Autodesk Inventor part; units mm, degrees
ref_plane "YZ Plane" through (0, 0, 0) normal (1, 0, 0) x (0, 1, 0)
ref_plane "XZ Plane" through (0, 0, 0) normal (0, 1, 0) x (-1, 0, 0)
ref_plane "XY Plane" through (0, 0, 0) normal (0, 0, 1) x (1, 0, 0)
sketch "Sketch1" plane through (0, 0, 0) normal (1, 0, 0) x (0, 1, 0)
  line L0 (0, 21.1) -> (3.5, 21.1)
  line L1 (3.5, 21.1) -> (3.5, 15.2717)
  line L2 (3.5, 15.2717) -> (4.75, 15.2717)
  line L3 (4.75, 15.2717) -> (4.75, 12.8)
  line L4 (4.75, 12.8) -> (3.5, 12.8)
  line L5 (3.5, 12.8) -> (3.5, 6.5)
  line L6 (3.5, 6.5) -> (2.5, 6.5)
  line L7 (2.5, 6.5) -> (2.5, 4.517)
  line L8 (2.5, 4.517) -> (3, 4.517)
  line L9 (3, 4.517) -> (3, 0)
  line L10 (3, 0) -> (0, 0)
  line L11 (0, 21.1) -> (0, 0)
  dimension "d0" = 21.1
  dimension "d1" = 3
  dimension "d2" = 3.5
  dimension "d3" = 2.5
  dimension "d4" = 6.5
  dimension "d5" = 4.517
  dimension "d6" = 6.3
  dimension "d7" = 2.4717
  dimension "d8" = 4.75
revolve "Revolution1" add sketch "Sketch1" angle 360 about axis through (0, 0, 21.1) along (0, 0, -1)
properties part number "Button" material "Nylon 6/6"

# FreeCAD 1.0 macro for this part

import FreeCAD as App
import Part
import Sketcher
from FreeCAD import Vector

doc = App.newDocument("Part")
body = doc.addObject("PartDesign::Body", "Body")

# Sketch on YZ plane
sketch1 = body.newObject("Sketcher::SketchObject", "Sketch")
sketch1.AttachmentSupport = (doc.getObject("YZ_Plane"), [""])
sketch1.MapMode = "FlatFace"
sketch1.addGeometry([
    Part.LineSegment(Vector(3.5, 21.1, 0), Vector(0, 21.1, 0)),  # 0
    Part.LineSegment(Vector(0, 21.1, 0), Vector(0, 0, 0)),  # 1
    Part.LineSegment(Vector(0, 0, 0), Vector(3, 0, 0)),  # 2
    Part.LineSegment(Vector(3, 0, 0), Vector(3, 4.5, 0)),  # 3
    Part.LineSegment(Vector(3, 4.5, 0), Vector(2.5, 4.5, 0)),  # 4
    Part.LineSegment(Vector(2.5, 4.5, 0), Vector(2.5, 6.5, 0)),  # 5
    Part.LineSegment(Vector(2.5, 6.5, 0), Vector(3.5, 6.5, 0)),  # 6
    Part.LineSegment(Vector(3.5, 6.5, 0), Vector(3.5, 12.8, 0)),  # 7
    Part.LineSegment(Vector(3.5, 12.8, 0), Vector(4.8, 12.8, 0)),  # 8
    Part.LineSegment(Vector(4.8, 12.8, 0), Vector(4.8, 15.3, 0)),  # 9
    Part.LineSegment(Vector(4.8, 15.3, 0), Vector(3.5, 15.3, 0)),  # 10
    Part.LineSegment(Vector(3.5, 15.3, 0), Vector(3.5, 21.1, 0)),  # 11
], False)
sketch1.addConstraint([
    Sketcher.Constraint("Coincident", 0, 2, 1, 1),
    Sketcher.Constraint("Coincident", 1, 2, 2, 1),
    Sketcher.Constraint("Coincident", 2, 2, 3, 1),
    Sketcher.Constraint("Coincident", 3, 2, 4, 1),
    Sketcher.Constraint("Coincident", 4, 2, 5, 1),
    Sketcher.Constraint("Coincident", 5, 2, 6, 1),
    Sketcher.Constraint("Coincident", 6, 2, 7, 1),
    Sketcher.Constraint("Coincident", 7, 2, 8, 1),
    Sketcher.Constraint("Coincident", 8, 2, 9, 1),
    Sketcher.Constraint("Coincident", 9, 2, 10, 1),
    Sketcher.Constraint("Coincident", 10, 2, 11, 1),
    Sketcher.Constraint("Coincident", 11, 2, 0, 1),
    Sketcher.Constraint("Horizontal", 0),
    Sketcher.Constraint("Vertical", 1),
    Sketcher.Constraint("Horizontal", 2),
    Sketcher.Constraint("Vertical", 3),
    Sketcher.Constraint("Horizontal", 4),
    Sketcher.Constraint("Vertical", 5),
    Sketcher.Constraint("Horizontal", 6),
    Sketcher.Constraint("Vertical", 7),
    Sketcher.Constraint("Horizontal", 8),
    Sketcher.Constraint("Vertical", 9),
    Sketcher.Constraint("Horizontal", 10),
    Sketcher.Constraint("Vertical", 11),
    Sketcher.Constraint("Coincident", 1, 2, -1, 1),
    Sketcher.Constraint("Vertical", 7, 2, 10, 2),
    Sketcher.Constraint("DistanceX", 2, 1, 2, 2, 3.0),
    Sketcher.Constraint("DistanceX", 0, 2, 0, 1, 3.5),
    Sketcher.Constraint("DistanceY", 1, 2, 1, 1, 21.1),
    Sketcher.Constraint("DistanceY", 7, 1, 7, 2, 6.3),
    Sketcher.Constraint("DistanceX", -1, 1, 4, 2, 2.5),
    Sketcher.Constraint("DistanceY", -1, 1, 5, 2, 6.5),
    Sketcher.Constraint("DistanceY", 3, 1, 3, 2, 4.517),
    Sketcher.Constraint("DistanceX", -1, 1, 8, 2, 4.75),
    Sketcher.Constraint("DistanceY", 9, 1, 9, 2, 2.4717),
])
revolution = body.newObject("PartDesign::Revolution", "Revolution")
revolution.Profile = sketch1
revolution.ReferenceAxis = (sketch1, ["V_Axis"])
revolution.Angle = 360

doc.recompute()
